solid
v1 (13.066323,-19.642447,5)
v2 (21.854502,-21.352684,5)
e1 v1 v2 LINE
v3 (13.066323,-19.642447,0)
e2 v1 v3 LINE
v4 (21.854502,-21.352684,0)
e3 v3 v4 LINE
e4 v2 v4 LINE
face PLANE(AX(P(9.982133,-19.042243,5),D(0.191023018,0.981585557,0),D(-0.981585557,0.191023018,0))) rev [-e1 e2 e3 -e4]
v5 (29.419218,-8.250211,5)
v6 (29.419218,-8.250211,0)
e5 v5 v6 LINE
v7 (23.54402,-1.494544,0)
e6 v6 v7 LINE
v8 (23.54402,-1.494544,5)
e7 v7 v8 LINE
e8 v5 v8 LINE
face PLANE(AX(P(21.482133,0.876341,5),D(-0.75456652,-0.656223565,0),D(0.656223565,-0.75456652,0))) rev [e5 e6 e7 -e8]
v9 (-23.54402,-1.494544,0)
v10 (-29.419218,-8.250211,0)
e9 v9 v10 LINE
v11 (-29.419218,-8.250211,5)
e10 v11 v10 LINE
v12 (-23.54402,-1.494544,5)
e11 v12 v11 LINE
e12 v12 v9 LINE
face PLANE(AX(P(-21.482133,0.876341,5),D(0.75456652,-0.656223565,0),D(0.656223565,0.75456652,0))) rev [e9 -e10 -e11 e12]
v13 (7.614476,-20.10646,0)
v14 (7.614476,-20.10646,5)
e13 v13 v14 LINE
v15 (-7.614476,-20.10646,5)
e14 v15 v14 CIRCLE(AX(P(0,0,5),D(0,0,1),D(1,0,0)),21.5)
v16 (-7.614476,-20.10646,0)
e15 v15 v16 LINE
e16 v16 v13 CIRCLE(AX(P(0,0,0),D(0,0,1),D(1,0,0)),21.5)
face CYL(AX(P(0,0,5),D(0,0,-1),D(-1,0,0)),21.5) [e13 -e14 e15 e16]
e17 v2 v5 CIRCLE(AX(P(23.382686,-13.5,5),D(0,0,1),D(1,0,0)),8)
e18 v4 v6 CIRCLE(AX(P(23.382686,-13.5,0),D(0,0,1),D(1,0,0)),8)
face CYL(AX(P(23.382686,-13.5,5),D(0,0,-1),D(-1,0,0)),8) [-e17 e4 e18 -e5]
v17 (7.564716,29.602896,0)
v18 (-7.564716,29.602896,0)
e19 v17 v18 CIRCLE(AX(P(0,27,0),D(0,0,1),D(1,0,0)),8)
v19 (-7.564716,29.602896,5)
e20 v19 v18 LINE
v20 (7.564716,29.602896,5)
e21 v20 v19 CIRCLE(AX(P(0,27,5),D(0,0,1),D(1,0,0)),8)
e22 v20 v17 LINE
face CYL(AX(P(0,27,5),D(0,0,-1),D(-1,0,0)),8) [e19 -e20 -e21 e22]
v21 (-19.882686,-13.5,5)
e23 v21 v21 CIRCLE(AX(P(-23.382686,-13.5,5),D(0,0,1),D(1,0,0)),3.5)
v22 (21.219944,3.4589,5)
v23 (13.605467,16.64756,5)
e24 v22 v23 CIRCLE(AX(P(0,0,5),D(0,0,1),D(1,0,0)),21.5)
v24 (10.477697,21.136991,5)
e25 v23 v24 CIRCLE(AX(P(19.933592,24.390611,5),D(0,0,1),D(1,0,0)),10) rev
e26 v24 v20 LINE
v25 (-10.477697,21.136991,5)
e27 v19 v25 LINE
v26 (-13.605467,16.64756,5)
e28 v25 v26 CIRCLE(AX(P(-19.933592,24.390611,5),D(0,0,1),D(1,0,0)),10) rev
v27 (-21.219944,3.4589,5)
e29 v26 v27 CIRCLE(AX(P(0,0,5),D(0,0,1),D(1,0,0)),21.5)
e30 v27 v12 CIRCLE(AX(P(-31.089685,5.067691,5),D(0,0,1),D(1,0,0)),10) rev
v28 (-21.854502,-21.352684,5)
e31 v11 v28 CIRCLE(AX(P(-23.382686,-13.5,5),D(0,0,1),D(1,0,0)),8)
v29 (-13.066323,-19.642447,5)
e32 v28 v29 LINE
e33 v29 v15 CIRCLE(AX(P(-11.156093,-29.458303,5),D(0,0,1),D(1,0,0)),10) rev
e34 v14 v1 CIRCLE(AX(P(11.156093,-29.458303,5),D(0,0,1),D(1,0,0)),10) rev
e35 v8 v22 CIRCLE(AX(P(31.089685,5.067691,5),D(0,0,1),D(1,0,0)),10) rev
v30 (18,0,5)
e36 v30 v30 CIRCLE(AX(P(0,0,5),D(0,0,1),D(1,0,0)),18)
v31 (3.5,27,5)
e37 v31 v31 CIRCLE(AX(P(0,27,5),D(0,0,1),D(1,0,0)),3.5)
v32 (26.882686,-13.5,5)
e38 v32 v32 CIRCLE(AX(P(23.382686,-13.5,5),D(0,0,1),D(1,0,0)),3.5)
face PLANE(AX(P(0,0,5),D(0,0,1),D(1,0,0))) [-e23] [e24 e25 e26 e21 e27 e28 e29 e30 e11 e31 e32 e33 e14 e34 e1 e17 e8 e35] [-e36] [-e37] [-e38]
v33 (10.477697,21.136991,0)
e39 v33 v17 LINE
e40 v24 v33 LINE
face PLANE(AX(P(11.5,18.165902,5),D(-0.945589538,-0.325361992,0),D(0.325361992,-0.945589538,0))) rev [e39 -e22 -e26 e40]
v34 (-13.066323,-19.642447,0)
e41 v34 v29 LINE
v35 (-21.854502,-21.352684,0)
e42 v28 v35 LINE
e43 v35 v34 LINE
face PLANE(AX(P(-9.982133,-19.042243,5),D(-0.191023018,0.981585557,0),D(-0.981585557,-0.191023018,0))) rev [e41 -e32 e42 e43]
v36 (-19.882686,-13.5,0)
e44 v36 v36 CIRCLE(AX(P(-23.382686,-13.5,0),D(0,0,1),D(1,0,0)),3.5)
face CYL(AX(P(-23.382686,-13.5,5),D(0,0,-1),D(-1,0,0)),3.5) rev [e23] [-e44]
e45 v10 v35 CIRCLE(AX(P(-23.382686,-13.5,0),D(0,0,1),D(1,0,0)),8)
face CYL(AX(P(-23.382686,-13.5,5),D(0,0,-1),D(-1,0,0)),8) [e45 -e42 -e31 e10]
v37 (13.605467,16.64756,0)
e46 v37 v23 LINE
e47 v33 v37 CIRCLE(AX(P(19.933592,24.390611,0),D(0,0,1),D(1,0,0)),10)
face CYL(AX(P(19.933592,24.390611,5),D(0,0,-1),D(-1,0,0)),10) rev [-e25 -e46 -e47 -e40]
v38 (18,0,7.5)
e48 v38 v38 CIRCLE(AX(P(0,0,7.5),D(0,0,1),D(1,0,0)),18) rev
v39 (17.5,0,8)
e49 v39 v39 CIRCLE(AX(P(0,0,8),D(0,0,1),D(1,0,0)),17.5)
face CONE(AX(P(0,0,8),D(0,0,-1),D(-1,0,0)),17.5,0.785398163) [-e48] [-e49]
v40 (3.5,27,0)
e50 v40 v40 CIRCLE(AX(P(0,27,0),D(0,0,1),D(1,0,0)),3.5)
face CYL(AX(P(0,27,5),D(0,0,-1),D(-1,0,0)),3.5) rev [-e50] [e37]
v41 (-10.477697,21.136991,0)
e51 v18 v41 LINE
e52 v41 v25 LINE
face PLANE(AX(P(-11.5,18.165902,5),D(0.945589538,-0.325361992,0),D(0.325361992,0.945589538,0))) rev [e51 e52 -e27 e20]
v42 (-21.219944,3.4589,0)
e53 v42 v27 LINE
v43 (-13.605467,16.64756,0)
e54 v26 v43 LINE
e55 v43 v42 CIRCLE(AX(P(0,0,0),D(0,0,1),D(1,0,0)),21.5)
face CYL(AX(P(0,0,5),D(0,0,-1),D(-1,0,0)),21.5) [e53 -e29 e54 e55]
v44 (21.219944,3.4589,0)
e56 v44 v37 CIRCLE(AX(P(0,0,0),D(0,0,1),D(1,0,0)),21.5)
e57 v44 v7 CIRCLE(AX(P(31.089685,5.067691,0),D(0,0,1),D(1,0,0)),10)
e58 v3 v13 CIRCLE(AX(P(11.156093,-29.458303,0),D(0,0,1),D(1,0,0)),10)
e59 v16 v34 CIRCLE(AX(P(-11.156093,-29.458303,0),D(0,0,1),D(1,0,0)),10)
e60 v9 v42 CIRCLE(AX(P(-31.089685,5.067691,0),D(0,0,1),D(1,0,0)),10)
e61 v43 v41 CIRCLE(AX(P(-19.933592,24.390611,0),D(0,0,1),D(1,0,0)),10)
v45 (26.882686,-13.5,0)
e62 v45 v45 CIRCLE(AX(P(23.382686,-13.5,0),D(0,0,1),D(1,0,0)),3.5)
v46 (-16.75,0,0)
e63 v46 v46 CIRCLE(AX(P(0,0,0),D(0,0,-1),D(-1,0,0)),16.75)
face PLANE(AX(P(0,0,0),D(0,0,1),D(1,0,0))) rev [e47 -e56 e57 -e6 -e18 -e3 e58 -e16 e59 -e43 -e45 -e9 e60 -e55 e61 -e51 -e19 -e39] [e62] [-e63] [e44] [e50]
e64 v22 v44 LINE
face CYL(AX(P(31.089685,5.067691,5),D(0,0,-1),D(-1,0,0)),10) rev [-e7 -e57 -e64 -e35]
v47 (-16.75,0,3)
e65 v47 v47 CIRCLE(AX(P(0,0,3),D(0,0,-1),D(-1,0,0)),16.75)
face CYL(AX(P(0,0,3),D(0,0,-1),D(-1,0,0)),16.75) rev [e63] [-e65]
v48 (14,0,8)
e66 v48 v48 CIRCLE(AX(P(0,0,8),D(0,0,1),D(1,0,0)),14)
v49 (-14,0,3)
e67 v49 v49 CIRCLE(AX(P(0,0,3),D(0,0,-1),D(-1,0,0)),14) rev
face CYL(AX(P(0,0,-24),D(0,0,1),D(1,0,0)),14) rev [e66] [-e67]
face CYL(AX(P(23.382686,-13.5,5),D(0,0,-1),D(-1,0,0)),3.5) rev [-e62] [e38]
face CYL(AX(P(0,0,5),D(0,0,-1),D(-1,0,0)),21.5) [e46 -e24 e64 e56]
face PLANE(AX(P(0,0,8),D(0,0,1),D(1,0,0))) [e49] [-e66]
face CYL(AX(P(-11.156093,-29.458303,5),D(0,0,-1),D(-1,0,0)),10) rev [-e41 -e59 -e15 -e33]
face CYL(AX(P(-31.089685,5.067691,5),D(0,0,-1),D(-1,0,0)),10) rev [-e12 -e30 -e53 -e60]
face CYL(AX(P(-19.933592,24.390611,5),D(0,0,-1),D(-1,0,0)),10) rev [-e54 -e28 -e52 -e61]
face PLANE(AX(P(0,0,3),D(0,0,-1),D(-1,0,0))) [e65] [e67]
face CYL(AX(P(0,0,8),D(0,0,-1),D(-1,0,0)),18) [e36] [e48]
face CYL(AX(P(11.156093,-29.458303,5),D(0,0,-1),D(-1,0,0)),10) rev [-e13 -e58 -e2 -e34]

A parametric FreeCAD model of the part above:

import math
import FreeCAD as App
import Part
import Sketcher
from FreeCAD import Vector
Q = App.Units.Quantity


def edges_at(feature, points):
    """Names of the edges that pass closest to the given points."""
    edges = feature.Shape.Edges
    near = lambda p: min(range(len(edges)), key=lambda i: edges[i].distToShape(Part.Vertex(*p))[0])
    return sorted({f"Edge{near(p) + 1}" for p in points})

doc = App.newDocument("Part")
body = doc.addObject("PartDesign::Body", "Body")

sketch1 = body.newObject("Sketcher::SketchObject", "Sketch")
sketch1.AttachmentSupport = (doc.getObject("XY_Plane"), [""])
sketch1.MapMode = "FlatFace"
sketch1.addGeometry(Part.LineSegment(Vector(-7.6, 29.6, 0), Vector(-11.5, 18.2, 0)), False)
sketch1.addGeometry(Part.ArcOfCircle(Part.Circle(Vector(0, 0, 0), Vector(0, 0, 1), 21.5), math.radians(122), math.radians(178)), False)
sketch1.addGeometry(Part.LineSegment(Vector(-21.5, 0.9, 0), Vector(-29.4, -8.3, 0)), False)
sketch1.addGeometry(Part.ArcOfCircle(Part.Circle(Vector(-23.4, -13.5, 0), Vector(0, 0, 1), 8), math.radians(139), math.radians(281)), False)
sketch1.addGeometry(Part.LineSegment(Vector(-21.9, -21.4, 0), Vector(-10, -19, 0)), False)
sketch1.addGeometry(Part.ArcOfCircle(Part.Circle(Vector(0, 0, 0), Vector(0, 0, 1), 21.5), math.radians(-118), math.radians(-62)), False)
sketch1.addGeometry(Part.LineSegment(Vector(10, -19, 0), Vector(21.9, -21.4, 0)), False)
sketch1.addGeometry(Part.ArcOfCircle(Part.Circle(Vector(23.4, -13.5, 0), Vector(0, 0, 1), 8), math.radians(-101), math.radians(41)), False)
sketch1.addGeometry(Part.LineSegment(Vector(29.4, -8.3, 0), Vector(21.5, 0.9, 0)), False)
sketch1.addGeometry(Part.ArcOfCircle(Part.Circle(Vector(0, 0, 0), Vector(0, 0, 1), 21.5), math.radians(2), math.radians(58)), False)
sketch1.addGeometry(Part.LineSegment(Vector(11.5, 18.2, 0), Vector(7.6, 29.6, 0)), False)
sketch1.addGeometry(Part.ArcOfCircle(Part.Circle(Vector(0, 27, 0), Vector(0, 0, 1), 8), math.radians(19), math.radians(161)), False)
sketch1.addGeometry(Part.Circle(Vector(23.4, -13.5, 0), Vector(0, 0, 1), 3.5), False)
sketch1.addGeometry(Part.Circle(Vector(-23.4, -13.5, 0), Vector(0, 0, 1), 3.5), False)
sketch1.addGeometry(Part.Circle(Vector(0, 27, 0), Vector(0, 0, 1), 3.5), False)
sketch1.addConstraint(Sketcher.Constraint("Coincident", 0, 2, 1, 1))
sketch1.addConstraint(Sketcher.Constraint("Coincident", 1, 2, 2, 1))
sketch1.addConstraint(Sketcher.Constraint("Tangent", 2, 2, 3, 1))
sketch1.addConstraint(Sketcher.Constraint("Tangent", 3, 2, 4, 1))
sketch1.addConstraint(Sketcher.Constraint("Coincident", 4, 2, 5, 1))
sketch1.addConstraint(Sketcher.Constraint("Coincident", 5, 2, 6, 1))
sketch1.addConstraint(Sketcher.Constraint("Tangent", 6, 2, 7, 1))
sketch1.addConstraint(Sketcher.Constraint("Tangent", 7, 2, 8, 1))
sketch1.addConstraint(Sketcher.Constraint("Coincident", 8, 2, 9, 1))
sketch1.addConstraint(Sketcher.Constraint("Coincident", 9, 2, 10, 1))
sketch1.addConstraint(Sketcher.Constraint("Tangent", 10, 2, 11, 1))
sketch1.addConstraint(Sketcher.Constraint("Tangent", 11, 2, 0, 1))
sketch1.addConstraint(Sketcher.Constraint("Coincident", 1, 3, -1, 1))
sketch1.addConstraint(Sketcher.Constraint("Coincident", 5, 3, -1, 1))
sketch1.addConstraint(Sketcher.Constraint("Coincident", 9, 3, -1, 1))
sketch1.addConstraint(Sketcher.Constraint("Coincident", 12, 3, 7, 3))
sketch1.addConstraint(Sketcher.Constraint("Coincident", 13, 3, 3, 3))
sketch1.addConstraint(Sketcher.Constraint("Coincident", 14, 3, 11, 3))
sketch1.addConstraint(Sketcher.Constraint("Equal", 1, 5))
sketch1.addConstraint(Sketcher.Constraint("Equal", 3, 7))
sketch1.addConstraint(Sketcher.Constraint("Equal", 5, 9))
sketch1.addConstraint(Sketcher.Constraint("Equal", 7, 11))
sketch1.addConstraint(Sketcher.Constraint("Equal", 12, 13))
sketch1.addConstraint(Sketcher.Constraint("Equal", 13, 14))
sketch1.addConstraint(Sketcher.Constraint("Symmetric", 3, 3, 7, 3, -2))
sketch1.addConstraint(Sketcher.Constraint("Symmetric", 10, 2, 11, 2, -2))
sketch1.addConstraint(Sketcher.Constraint("Horizontal", 4, 2, 5, 2))
sketch1.addConstraint(Sketcher.Constraint("Horizontal", 2, 2, 7, 2))
sketch1.addConstraint(Sketcher.Constraint("Equal", 0, 2))
sketch1.addConstraint(Sketcher.Constraint("Equal", 2, 4))
sketch1.addConstraint(Sketcher.Constraint("Diameter", 12, Q("7 mm")))
sketch1.addConstraint(Sketcher.Constraint("Radius", 3, Q("8 mm")))
sketch1.addConstraint(Sketcher.Constraint("Radius", 1, Q("21.5 mm")))
sketch1.addConstraint(Sketcher.Constraint("DistanceY", -1, 1, 11, 3, Q("27 mm")))
sketch1.addConstraint(Sketcher.Constraint("DistanceY", 3, 3, -1, 1, Q("13.5 mm")))
sketch1.addConstraint(Sketcher.Constraint("DistanceX", 0, 2, -1, 1, Q("11.5 mm")))
sketch1.addConstraint(Sketcher.Constraint("DistanceX", 3, 2, -1, 1, Q("21.854502 mm")))
pad1 = body.newObject("PartDesign::Pad", "Pad")
pad1.Profile = sketch1
pad1.Length = 5
doc.recompute()

fillet = body.newObject("PartDesign::Fillet", "Fillet")
fillet.Base = (pad1, edges_at(pad1, [
    (21.482, 0.876, 2.5),
    (9.982, -19.042, 2.5),
    (-9.982, -19.042, 2.5),
    (-21.482, 0.876, 2.5),
    (-11.5, 18.166, 2.5),
    (11.5, 18.166, 2.5),
]))
fillet.Radius = 10

sketch2 = body.newObject("Sketcher::SketchObject", "Sketch001")
sketch2.AttachmentSupport = (doc.getObject("XY_Plane"), [""])
sketch2.MapMode = "FlatFace"
sketch2.AttachmentOffset = App.Placement(Vector(0, 0, 5), App.Rotation())
sketch2.addGeometry(Part.Circle(Vector(0, 0, 0), Vector(0, 0, 1), 18), False)
sketch2.addConstraint(Sketcher.Constraint("Coincident", 0, 3, -1, 1))
sketch2.addConstraint(Sketcher.Constraint("Diameter", 0, Q("36 mm")))
pad2 = body.newObject("PartDesign::Pad", "Pad001")
pad2.Profile = sketch2
pad2.Length = 3

sketch3 = body.newObject("Sketcher::SketchObject", "Sketch002")
sketch3.AttachmentSupport = (doc.getObject("XY_Plane"), [""])
sketch3.MapMode = "FlatFace"
sketch3.AttachmentOffset = App.Placement(Vector(0, 0, 8), App.Rotation())
sketch3.addGeometry(Part.Circle(Vector(0, 0, 0), Vector(0, 0, 1), 14), False)
sketch3.addConstraint(Sketcher.Constraint("Coincident", 0, 3, -1, 1))
sketch3.addConstraint(Sketcher.Constraint("Diameter", 0, Q("28 mm")))
pocket1 = body.newObject("PartDesign::Pocket", "Pocket")
pocket1.Profile = sketch3
pocket1.Length = 32

sketch4 = body.newObject("Sketcher::SketchObject", "Sketch003")
sketch4.AttachmentSupport = (doc.getObject("XY_Plane"), [""])
sketch4.MapMode = "FlatFace"
sketch4.addGeometry(Part.Circle(Vector(0, 0, 0), Vector(0, 0, 1), 17), False)
sketch4.addConstraint(Sketcher.Constraint("Coincident", 0, 3, -1, 1))
sketch4.addConstraint(Sketcher.Constraint("Diameter", 0, Q("33.5 mm")))
pocket2 = body.newObject("PartDesign::Pocket", "Pocket001")
pocket2.Profile = sketch4
pocket2.Length = 3
pocket2.Reversed = True
doc.recompute()

chamfer = body.newObject("PartDesign::Chamfer", "Chamfer")
chamfer.Base = (pocket2, edges_at(pocket2, [(-18, 0, 8)]))
chamfer.Size = 0.5

doc.recompute()
